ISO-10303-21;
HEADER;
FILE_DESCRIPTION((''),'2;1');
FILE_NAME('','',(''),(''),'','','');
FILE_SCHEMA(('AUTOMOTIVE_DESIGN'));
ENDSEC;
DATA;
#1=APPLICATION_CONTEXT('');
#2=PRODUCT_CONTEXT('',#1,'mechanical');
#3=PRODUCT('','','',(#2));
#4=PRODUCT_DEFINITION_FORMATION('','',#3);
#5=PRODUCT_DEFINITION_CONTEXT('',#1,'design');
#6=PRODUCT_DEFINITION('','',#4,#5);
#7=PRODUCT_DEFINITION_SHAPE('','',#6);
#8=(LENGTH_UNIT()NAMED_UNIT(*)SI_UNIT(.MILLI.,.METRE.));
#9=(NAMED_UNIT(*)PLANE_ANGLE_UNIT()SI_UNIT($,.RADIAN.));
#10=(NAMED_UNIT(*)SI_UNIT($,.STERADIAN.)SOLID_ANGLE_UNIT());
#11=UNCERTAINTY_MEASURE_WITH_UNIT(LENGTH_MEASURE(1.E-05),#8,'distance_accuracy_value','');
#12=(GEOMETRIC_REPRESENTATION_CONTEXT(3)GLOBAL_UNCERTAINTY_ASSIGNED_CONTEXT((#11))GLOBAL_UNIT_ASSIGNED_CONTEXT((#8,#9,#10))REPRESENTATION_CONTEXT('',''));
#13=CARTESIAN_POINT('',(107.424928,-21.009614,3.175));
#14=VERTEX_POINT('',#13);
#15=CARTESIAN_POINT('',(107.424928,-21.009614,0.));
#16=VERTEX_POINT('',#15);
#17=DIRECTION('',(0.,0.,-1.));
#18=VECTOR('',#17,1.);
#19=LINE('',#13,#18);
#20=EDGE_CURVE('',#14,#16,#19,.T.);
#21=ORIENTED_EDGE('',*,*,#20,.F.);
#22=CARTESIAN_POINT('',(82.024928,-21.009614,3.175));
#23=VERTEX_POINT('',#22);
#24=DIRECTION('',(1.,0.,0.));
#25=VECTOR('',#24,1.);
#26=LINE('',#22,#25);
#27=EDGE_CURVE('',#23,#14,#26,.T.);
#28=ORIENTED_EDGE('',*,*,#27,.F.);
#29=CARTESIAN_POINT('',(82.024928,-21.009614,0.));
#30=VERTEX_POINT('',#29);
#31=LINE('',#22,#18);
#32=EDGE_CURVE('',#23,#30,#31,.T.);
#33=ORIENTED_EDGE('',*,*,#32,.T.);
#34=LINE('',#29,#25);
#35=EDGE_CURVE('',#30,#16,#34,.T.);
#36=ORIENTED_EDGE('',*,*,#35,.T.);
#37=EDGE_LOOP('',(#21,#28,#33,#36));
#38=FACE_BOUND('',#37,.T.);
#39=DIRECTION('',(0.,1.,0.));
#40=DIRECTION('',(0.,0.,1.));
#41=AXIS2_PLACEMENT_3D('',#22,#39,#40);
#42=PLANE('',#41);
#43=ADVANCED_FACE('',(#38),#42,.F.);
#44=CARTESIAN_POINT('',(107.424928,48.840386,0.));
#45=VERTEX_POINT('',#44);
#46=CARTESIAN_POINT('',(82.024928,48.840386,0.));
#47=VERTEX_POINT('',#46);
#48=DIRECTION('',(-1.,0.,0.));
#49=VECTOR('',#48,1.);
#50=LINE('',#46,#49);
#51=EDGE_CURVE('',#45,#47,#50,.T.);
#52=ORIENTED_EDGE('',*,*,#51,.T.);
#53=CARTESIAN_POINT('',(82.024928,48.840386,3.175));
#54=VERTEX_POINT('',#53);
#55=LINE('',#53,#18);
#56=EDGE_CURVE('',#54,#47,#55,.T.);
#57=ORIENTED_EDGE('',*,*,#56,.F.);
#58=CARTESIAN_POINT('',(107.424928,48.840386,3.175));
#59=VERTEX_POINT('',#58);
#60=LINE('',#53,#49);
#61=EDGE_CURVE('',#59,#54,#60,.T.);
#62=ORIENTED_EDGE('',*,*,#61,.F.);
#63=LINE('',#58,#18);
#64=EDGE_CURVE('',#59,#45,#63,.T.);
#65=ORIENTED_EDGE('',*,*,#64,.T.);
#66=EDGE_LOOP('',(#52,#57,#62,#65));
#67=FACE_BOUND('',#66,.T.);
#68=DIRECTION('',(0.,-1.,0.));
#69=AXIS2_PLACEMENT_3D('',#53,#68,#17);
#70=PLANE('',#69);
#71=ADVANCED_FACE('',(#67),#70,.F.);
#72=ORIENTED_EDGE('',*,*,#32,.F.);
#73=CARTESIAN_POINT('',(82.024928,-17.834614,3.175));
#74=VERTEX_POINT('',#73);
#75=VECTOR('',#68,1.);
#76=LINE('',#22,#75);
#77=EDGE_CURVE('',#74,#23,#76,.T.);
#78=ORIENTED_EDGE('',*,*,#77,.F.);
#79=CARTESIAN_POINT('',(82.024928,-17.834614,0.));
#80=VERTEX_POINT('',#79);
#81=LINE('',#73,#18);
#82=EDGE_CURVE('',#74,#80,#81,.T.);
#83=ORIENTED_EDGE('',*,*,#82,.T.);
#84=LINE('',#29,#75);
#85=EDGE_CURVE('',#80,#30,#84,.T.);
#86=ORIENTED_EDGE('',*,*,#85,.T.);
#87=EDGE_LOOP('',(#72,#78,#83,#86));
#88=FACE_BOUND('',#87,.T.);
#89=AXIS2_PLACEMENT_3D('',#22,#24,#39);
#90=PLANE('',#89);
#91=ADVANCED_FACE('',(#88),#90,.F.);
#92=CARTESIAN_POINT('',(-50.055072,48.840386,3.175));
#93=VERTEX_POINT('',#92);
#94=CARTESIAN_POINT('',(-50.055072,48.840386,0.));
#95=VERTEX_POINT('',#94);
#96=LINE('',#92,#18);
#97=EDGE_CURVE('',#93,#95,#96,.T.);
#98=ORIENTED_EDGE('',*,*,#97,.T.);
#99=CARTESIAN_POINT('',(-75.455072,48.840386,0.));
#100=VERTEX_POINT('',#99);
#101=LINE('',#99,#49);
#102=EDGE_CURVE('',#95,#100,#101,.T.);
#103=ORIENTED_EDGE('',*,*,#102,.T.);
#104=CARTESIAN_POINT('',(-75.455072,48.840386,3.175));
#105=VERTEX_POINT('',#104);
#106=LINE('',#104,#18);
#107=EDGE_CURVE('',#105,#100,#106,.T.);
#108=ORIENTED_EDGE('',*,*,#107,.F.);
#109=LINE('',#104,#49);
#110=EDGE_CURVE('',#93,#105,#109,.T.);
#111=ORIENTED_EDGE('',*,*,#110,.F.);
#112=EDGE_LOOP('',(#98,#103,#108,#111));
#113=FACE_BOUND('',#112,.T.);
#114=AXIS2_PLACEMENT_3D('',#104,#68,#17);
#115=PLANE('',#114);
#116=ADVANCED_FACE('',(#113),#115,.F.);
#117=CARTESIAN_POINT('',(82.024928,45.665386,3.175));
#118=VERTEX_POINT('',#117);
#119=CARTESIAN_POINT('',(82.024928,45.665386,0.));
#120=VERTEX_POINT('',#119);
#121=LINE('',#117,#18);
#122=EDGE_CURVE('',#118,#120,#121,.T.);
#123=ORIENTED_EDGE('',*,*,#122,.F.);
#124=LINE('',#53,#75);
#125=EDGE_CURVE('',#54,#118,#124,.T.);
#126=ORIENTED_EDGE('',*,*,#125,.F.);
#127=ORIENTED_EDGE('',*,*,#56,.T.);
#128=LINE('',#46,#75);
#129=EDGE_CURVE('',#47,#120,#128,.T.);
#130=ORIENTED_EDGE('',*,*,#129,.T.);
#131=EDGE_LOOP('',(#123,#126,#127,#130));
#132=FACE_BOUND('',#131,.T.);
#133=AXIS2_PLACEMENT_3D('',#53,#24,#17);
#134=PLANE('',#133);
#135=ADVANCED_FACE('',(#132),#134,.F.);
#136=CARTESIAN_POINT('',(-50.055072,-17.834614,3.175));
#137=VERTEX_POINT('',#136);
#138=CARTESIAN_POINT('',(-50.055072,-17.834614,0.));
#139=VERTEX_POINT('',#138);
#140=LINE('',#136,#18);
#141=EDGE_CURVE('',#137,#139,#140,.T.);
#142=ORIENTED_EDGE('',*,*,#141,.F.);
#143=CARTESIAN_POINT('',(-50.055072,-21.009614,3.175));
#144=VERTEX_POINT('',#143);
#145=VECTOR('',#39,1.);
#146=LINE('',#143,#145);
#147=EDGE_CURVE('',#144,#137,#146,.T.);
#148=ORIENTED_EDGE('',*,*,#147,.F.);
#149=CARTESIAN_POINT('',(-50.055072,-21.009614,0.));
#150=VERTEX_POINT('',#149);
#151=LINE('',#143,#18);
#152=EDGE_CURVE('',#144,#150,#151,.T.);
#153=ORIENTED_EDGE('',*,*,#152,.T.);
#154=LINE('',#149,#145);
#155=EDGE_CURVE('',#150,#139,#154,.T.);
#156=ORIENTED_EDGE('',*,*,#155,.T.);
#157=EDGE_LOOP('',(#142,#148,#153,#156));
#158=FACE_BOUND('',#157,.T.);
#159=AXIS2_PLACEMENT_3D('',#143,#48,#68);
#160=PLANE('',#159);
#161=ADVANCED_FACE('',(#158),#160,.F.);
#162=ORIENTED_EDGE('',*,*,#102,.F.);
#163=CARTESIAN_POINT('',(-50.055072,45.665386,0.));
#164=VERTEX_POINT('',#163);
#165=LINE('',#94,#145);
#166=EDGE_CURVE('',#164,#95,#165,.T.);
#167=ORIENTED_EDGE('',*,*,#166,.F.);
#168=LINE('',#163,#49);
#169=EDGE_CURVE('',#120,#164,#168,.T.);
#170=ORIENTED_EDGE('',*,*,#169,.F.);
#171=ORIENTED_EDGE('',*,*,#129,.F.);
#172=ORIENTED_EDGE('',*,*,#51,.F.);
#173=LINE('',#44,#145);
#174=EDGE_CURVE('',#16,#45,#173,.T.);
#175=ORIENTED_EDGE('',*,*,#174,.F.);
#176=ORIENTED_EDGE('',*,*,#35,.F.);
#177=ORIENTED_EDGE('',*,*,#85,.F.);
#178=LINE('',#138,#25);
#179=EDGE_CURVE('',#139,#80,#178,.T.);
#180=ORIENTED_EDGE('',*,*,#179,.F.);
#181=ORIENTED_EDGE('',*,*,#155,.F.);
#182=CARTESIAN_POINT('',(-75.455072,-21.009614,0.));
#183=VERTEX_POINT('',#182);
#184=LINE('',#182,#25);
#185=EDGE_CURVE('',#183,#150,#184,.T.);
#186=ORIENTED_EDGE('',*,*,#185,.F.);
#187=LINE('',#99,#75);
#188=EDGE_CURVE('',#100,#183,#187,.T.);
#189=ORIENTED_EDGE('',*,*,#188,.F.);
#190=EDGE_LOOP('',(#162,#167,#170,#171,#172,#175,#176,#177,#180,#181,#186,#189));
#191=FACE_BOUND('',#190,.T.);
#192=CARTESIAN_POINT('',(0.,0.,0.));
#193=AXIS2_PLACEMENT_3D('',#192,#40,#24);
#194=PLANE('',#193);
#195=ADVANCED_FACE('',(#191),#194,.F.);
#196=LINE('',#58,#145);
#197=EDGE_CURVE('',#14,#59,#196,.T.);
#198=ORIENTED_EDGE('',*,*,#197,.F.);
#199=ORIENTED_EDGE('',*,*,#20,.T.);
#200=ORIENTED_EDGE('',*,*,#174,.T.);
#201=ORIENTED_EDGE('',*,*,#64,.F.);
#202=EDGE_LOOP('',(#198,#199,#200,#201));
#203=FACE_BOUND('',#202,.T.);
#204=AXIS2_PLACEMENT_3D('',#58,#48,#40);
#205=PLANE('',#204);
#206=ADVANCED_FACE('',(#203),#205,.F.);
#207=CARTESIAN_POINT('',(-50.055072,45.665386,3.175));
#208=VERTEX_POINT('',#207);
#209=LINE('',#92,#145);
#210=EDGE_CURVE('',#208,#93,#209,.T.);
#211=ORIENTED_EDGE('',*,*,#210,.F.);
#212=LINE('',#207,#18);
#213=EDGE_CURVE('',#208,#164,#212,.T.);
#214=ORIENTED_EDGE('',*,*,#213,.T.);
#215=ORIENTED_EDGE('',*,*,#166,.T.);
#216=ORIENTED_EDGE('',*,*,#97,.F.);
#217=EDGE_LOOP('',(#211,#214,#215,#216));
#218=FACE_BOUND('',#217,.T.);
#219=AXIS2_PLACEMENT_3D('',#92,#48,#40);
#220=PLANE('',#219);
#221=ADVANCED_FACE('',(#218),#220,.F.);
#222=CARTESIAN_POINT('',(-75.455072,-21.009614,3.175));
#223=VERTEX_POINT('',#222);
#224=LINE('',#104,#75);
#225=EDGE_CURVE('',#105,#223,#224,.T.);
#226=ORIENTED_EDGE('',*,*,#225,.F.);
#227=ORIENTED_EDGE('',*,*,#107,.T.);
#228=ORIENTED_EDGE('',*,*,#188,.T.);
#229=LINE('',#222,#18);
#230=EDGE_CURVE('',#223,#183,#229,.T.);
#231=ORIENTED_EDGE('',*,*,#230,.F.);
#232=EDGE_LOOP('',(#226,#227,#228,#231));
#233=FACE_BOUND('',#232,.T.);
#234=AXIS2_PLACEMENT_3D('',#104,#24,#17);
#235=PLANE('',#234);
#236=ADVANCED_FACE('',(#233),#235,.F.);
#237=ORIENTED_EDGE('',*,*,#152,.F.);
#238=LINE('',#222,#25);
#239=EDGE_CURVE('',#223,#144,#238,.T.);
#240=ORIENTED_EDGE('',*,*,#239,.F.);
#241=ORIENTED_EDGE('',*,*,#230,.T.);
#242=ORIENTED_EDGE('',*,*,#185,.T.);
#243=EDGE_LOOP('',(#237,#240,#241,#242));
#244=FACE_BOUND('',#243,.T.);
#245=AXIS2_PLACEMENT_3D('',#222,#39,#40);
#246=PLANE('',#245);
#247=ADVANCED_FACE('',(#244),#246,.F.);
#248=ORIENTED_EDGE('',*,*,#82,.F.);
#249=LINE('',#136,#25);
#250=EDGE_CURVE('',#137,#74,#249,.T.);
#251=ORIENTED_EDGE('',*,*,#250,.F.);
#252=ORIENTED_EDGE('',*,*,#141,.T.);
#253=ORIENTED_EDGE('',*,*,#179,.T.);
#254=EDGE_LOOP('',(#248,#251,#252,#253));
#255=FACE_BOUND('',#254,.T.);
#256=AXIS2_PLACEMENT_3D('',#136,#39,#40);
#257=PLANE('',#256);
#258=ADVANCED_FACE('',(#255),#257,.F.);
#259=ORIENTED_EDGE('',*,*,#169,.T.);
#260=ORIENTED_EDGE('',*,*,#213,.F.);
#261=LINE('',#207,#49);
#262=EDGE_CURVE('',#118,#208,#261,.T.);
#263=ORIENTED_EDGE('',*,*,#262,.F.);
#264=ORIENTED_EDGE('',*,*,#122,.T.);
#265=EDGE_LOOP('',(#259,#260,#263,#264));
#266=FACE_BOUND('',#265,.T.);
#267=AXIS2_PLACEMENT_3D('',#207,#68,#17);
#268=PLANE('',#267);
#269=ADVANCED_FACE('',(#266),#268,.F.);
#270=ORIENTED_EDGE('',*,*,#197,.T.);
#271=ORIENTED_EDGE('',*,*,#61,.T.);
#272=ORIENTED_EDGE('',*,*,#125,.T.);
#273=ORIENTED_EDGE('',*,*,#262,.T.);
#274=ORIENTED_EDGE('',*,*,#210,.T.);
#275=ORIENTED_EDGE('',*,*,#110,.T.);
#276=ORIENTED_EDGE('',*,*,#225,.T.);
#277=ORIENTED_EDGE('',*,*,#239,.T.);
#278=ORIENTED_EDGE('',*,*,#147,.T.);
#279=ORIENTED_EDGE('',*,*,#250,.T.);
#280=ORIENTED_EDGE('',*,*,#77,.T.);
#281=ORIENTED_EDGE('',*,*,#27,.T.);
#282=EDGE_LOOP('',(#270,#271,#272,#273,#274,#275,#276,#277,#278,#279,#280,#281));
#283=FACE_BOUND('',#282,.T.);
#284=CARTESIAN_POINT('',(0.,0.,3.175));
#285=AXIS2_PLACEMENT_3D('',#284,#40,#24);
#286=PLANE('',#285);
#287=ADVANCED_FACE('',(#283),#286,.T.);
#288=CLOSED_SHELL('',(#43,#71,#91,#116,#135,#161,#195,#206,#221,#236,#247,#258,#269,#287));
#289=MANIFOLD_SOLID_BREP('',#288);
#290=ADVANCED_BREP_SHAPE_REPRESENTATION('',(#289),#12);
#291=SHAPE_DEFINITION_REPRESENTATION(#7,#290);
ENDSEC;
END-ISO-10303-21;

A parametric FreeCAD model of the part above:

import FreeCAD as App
import Part
import Sketcher
from FreeCAD import Vector
Q = App.Units.Quantity

doc = App.newDocument("Part")
body = doc.addObject("PartDesign::Body", "Body")

# Sketch on XY plane
sketch1 = body.newObject("Sketcher::SketchObject", "Sketch")
sketch1.AttachmentSupport = (doc.getObject("XY_Plane"), [""])
sketch1.MapMode = "FlatFace"
sketch1.addGeometry(Part.LineSegment(Vector(-50.055072, 48.840386, 0), Vector(-75.455072, 48.840386, 0)), False)
sketch1.addGeometry(Part.LineSegment(Vector(-75.455072, 48.840386, 0), Vector(-75.455072, -21.009614, 0)), False)
sketch1.addGeometry(Part.LineSegment(Vector(-75.455072, -21.009614, 0), Vector(-50.055072, -21.009614, 0)), False)
sketch1.addGeometry(Part.LineSegment(Vector(-50.055072, -21.009614, 0), Vector(-50.055072, -17.834614, 0)), False)
sketch1.addGeometry(Part.LineSegment(Vector(-50.055072, -17.834614, 0), Vector(82.024928, -17.834614, 0)), False)
sketch1.addGeometry(Part.LineSegment(Vector(82.024928, -17.834614, 0), Vector(82.024928, -21.009614, 0)), False)
sketch1.addGeometry(Part.LineSegment(Vector(82.024928, -21.009614, 0), Vector(107.424928, -21.009614, 0)), False)
sketch1.addGeometry(Part.LineSegment(Vector(107.424928, -21.009614, 0), Vector(107.424928, 48.840386, 0)), False)
sketch1.addGeometry(Part.LineSegment(Vector(107.424928, 48.840386, 0), Vector(82.024928, 48.840386, 0)), False)
sketch1.addGeometry(Part.LineSegment(Vector(82.024928, 48.840386, 0), Vector(82.024928, 45.665386, 0)), False)
sketch1.addGeometry(Part.LineSegment(Vector(82.024928, 45.665386, 0), Vector(-50.055072, 45.665386, 0)), False)
sketch1.addGeometry(Part.LineSegment(Vector(-50.055072, 45.665386, 0), Vector(-50.055072, 48.840386, 0)), False)
sketch1.addConstraint(Sketcher.Constraint("Coincident", 0, 2, 1, 1))
sketch1.addConstraint(Sketcher.Constraint("Coincident", 1, 2, 2, 1))
sketch1.addConstraint(Sketcher.Constraint("Coincident", 2, 2, 3, 1))
sketch1.addConstraint(Sketcher.Constraint("Coincident", 3, 2, 4, 1))
sketch1.addConstraint(Sketcher.Constraint("Coincident", 4, 2, 5, 1))
sketch1.addConstraint(Sketcher.Constraint("Coincident", 5, 2, 6, 1))
sketch1.addConstraint(Sketcher.Constraint("Coincident", 6, 2, 7, 1))
sketch1.addConstraint(Sketcher.Constraint("Coincident", 7, 2, 8, 1))
sketch1.addConstraint(Sketcher.Constraint("Coincident", 8, 2, 9, 1))
sketch1.addConstraint(Sketcher.Constraint("Coincident", 9, 2, 10, 1))
sketch1.addConstraint(Sketcher.Constraint("Coincident", 10, 2, 11, 1))
sketch1.addConstraint(Sketcher.Constraint("Coincident", 11, 2, 0, 1))
sketch1.addConstraint(Sketcher.Constraint("Horizontal", 0))
sketch1.addConstraint(Sketcher.Constraint("Vertical", 1))
sketch1.addConstraint(Sketcher.Constraint("Horizontal", 2))
sketch1.addConstraint(Sketcher.Constraint("Vertical", 3))
sketch1.addConstraint(Sketcher.Constraint("Horizontal", 4))
sketch1.addConstraint(Sketcher.Constraint("Vertical", 5))
sketch1.addConstraint(Sketcher.Constraint("Horizontal", 6))
sketch1.addConstraint(Sketcher.Constraint("Vertical", 7))
sketch1.addConstraint(Sketcher.Constraint("Horizontal", 8))
sketch1.addConstraint(Sketcher.Constraint("Vertical", 9))
sketch1.addConstraint(Sketcher.Constraint("Horizontal", 10))
sketch1.addConstraint(Sketcher.Constraint("Vertical", 11))
sketch1.addConstraint(Sketcher.Constraint("Horizontal", 2, 2, 5, 2))
sketch1.addConstraint(Sketcher.Constraint("Horizontal", 0, 2, 7, 2))
sketch1.addConstraint(Sketcher.Constraint("Vertical", 5, 2, 8, 2))
sketch1.addConstraint(Sketcher.Constraint("Vertical", 3, 2, 10, 2))
sketch1.addConstraint(Sketcher.Constraint("Equal", 2, 6))
sketch1.addConstraint(Sketcher.Constraint("Equal", 5, 9))
sketch1.addConstraint(Sketcher.Constraint("DistanceX", 0, 2, 0, 1, Q("1 in")))
sketch1.addConstraint(Sketcher.Constraint("DistanceX", 4, 1, 4, 2, Q("5.2 in")))
sketch1.addConstraint(Sketcher.Constraint("DistanceY", 1, 2, 1, 1, Q("2.75 in")))
sketch1.addConstraint(Sketcher.Constraint("DistanceY", 4, 2, 9, 2, Q("2.5 in")))
sketch1.addConstraint(Sketcher.Constraint("DistanceX", 0, 2, -1, 1, Q("75.455072 mm")))
sketch1.addConstraint(Sketcher.Constraint("DistanceY", -1, 1, 0, 2, Q("48.840386 mm")))
pad1 = body.newObject("PartDesign::Pad", "Pad")
pad1.Profile = sketch1
pad1.Length = Q("0.125 in")

doc.recompute()
